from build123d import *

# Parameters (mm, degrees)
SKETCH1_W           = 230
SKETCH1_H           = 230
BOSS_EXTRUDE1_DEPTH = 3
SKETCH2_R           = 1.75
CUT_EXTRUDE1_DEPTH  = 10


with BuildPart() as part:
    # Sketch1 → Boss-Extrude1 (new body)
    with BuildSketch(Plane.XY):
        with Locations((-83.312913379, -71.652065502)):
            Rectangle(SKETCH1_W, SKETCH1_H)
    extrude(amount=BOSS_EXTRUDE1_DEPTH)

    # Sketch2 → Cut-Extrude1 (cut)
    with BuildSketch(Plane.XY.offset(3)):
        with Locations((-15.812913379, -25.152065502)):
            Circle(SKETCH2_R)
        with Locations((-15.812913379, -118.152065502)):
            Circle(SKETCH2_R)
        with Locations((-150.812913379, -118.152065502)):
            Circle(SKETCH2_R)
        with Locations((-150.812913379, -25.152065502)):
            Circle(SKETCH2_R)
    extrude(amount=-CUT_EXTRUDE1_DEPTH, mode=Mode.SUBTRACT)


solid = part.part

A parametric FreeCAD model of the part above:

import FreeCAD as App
import Part
import Sketcher

V = App.Vector

doc = App.newDocument("Part")
body = doc.addObject("PartDesign::Body", "Body")

# Sketch on XY plane
sketch1 = body.newObject("Sketcher::SketchObject", "Sketch")
sketch1.AttachmentSupport = (doc.getObject("XY_Plane"), [""])
sketch1.MapMode = "FlatFace"
sketch1.addGeometry([
    Part.LineSegment(V(-198, 43, 0), V(-198, -187, 0)),
    Part.LineSegment(V(-198, -187, 0), V(32, -187, 0)),
    Part.LineSegment(V(32, -187, 0), V(32, 43, 0)),
    Part.LineSegment(V(32, 43, 0), V(-198, 43, 0)),
], False)
sketch1.addConstraint([
    Sketcher.Constraint("Coincident", 0, 2, 1, 1),
    Sketcher.Constraint("Coincident", 1, 2, 2, 1),
    Sketcher.Constraint("Coincident", 2, 2, 3, 1),
    Sketcher.Constraint("Coincident", 3, 2, 0, 1),
    Sketcher.Constraint("Vertical", 0),
    Sketcher.Constraint("Horizontal", 1),
    Sketcher.Constraint("Vertical", 2),
    Sketcher.Constraint("Horizontal", 3),
    Sketcher.Constraint("Equal", 3, 0),
    Sketcher.Constraint("DistanceX", 1, 1, 1, 2, 230.0),
    Sketcher.Constraint("DistanceX", 0, 2, -1, 1, 198.312913),
    Sketcher.Constraint("DistanceY", 0, 2, -1, 1, 186.652066),
])
pad1 = body.newObject("PartDesign::Pad", "Pad")
pad1.Profile = sketch1
pad1.Length = 3

# Sketch on XY plane
sketch2 = body.newObject("Sketcher::SketchObject", "Sketch001")
sketch2.AttachmentSupport = (doc.getObject("XY_Plane"), [""])
sketch2.MapMode = "FlatFace"
sketch2.AttachmentOffset = App.Placement(V(0, 0, 3), App.Rotation())
sketch2.addGeometry([
    Part.Circle(V(-15.8, -25.2, 0), V(0, 0, 1), 1.8),
    Part.Circle(V(-15.8, -118.2, 0), V(0, 0, 1), 1.8),
    Part.Circle(V(-150.8, -118.2, 0), V(0, 0, 1), 1.8),
    Part.Circle(V(-150.8, -25.2, 0), V(0, 0, 1), 1.8),
], False)
sketch2.addConstraint([
    Sketcher.Constraint("Equal", 0, 1),
    Sketcher.Constraint("Equal", 1, 2),
    Sketcher.Constraint("Equal", 2, 3),
    Sketcher.Constraint("Horizontal", 1, 3, 2, 3),
    Sketcher.Constraint("Horizontal", 0, 3, 3, 3),
    Sketcher.Constraint("Vertical", 0, 3, 1, 3),
    Sketcher.Constraint("Vertical", 2, 3, 3, 3),
    Sketcher.Constraint("Diameter", 0, 3.5),
    Sketcher.Constraint("DistanceY", 1, 3, 0, 3, 93.0),
    Sketcher.Constraint("DistanceX", 2, 3, 1, 3, 135.0),
    Sketcher.Constraint("DistanceX", 0, 3, -1, 1, 15.812913),
    Sketcher.Constraint("DistanceY", 0, 3, -1, 1, 25.152066),
])
pocket1 = body.newObject("PartDesign::Pocket", "Pocket")
pocket1.Profile = sketch2
pocket1.Length = 10

doc.recompute()
